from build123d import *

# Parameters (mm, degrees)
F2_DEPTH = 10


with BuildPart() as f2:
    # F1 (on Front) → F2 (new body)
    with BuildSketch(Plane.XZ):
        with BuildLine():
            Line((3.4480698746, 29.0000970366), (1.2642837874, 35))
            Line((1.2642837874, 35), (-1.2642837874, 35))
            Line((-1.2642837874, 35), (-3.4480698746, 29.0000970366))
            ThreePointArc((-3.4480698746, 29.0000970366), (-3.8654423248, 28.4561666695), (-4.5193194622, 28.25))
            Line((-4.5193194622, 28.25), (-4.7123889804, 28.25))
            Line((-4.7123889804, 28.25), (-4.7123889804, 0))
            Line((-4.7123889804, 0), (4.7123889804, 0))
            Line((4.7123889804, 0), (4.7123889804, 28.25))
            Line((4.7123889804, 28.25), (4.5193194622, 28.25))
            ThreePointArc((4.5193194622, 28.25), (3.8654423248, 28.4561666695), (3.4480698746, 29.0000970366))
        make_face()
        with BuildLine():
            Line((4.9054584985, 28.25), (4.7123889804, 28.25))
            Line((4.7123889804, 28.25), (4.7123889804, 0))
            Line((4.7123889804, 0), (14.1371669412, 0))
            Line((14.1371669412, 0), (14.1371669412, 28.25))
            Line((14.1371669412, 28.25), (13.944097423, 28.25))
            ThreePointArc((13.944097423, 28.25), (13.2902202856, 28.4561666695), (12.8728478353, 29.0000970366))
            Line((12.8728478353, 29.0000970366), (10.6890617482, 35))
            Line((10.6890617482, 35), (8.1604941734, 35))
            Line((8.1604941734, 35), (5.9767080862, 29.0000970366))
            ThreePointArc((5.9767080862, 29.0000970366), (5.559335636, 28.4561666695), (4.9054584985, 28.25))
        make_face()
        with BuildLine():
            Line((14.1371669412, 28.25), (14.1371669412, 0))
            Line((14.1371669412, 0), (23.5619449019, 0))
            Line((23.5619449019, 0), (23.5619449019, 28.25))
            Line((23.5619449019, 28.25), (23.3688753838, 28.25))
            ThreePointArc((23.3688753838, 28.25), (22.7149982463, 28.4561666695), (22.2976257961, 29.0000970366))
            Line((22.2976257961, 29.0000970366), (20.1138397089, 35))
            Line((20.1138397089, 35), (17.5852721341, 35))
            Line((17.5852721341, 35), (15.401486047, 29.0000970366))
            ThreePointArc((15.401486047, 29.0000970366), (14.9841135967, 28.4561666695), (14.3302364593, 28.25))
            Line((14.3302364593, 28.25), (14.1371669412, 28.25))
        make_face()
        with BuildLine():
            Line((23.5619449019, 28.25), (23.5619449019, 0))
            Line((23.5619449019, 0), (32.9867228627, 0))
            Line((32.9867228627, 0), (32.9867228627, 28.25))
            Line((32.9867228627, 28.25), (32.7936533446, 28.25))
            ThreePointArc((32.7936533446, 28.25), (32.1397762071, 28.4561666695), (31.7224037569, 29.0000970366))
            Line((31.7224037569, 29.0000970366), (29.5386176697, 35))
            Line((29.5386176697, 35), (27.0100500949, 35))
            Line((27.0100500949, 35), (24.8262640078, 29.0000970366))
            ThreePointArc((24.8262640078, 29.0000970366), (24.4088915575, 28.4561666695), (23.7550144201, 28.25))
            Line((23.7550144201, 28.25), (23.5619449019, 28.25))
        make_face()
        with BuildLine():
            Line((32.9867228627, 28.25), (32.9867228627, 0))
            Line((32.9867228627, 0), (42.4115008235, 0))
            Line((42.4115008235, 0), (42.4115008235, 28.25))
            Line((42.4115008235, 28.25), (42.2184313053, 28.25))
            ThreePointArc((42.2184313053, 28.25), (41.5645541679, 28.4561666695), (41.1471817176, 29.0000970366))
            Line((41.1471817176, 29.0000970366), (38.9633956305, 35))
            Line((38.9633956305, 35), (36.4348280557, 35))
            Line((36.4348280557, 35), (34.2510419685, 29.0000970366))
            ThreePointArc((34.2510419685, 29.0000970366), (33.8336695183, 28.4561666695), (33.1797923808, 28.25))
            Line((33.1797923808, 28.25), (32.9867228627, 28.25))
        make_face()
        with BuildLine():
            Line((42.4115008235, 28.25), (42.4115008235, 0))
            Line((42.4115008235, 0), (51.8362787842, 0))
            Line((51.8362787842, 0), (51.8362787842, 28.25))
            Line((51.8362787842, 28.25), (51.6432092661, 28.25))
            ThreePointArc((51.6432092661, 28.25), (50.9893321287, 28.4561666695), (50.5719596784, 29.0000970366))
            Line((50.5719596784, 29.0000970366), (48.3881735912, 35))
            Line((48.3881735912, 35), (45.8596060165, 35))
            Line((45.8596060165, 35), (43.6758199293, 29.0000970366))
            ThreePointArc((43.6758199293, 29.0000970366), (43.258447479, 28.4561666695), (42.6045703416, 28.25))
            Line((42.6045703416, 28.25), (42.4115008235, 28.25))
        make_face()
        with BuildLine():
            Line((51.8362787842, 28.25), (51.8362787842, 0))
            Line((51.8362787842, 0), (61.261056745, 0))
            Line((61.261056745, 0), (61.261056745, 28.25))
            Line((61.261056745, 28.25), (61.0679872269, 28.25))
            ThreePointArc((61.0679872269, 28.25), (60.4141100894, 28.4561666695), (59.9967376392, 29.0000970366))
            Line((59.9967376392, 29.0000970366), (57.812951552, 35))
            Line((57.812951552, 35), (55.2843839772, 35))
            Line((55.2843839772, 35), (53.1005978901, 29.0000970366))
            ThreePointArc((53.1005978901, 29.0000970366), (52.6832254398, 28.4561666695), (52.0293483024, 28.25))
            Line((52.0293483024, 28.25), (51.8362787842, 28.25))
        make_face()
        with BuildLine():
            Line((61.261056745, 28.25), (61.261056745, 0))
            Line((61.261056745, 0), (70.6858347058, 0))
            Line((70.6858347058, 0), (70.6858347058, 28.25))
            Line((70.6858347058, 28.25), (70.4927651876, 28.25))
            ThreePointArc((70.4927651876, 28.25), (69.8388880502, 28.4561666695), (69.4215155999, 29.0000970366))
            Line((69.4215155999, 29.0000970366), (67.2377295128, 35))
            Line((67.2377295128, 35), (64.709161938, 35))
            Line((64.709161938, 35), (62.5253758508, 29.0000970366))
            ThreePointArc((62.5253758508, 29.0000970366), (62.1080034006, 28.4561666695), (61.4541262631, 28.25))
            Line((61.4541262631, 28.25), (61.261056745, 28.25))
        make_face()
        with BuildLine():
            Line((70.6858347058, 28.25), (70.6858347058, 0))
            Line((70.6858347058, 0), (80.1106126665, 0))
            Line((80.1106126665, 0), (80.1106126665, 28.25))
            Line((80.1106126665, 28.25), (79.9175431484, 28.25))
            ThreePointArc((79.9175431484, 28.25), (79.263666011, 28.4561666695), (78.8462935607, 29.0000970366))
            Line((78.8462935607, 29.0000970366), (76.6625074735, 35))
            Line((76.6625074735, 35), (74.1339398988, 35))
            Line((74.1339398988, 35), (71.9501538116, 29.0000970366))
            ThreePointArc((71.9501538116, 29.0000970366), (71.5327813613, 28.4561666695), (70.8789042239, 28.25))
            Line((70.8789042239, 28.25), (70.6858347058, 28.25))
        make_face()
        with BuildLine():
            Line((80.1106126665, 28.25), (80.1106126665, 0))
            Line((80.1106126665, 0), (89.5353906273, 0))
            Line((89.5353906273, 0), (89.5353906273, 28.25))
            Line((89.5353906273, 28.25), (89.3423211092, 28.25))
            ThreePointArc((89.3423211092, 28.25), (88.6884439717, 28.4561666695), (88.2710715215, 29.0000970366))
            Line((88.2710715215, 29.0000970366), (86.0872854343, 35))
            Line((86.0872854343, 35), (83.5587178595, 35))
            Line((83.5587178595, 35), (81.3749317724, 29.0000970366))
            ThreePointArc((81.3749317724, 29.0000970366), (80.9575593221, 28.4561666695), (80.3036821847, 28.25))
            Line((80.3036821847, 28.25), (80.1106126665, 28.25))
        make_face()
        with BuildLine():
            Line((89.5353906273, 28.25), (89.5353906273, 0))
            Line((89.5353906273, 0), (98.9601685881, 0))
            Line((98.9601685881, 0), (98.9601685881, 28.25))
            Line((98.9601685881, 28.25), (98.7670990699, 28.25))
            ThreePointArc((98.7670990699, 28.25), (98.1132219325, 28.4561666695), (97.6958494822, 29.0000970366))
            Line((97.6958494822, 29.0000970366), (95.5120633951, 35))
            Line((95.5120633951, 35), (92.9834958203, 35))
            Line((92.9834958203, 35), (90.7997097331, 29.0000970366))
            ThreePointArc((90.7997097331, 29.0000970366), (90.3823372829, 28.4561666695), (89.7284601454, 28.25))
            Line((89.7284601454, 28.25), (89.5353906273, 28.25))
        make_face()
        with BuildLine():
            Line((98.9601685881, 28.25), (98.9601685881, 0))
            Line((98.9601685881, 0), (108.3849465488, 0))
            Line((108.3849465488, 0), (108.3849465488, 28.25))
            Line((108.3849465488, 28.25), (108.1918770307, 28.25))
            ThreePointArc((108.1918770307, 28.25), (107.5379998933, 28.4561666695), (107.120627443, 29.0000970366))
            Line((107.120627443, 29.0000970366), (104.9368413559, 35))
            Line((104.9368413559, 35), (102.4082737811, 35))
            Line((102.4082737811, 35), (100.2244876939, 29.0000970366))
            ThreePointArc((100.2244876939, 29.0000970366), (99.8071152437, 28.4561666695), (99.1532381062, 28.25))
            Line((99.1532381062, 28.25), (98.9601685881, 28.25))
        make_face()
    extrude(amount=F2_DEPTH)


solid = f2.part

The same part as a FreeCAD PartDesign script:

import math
import FreeCAD as App
import Part
import Sketcher

V = App.Vector
Q = App.Units.Quantity

doc = App.newDocument("Part")
body = doc.addObject("PartDesign::Body", "Body")

# Sketch on XZ plane
sketch1 = body.newObject("Sketcher::SketchObject", "Sketch")
sketch1.AttachmentSupport = (doc.getObject("XZ_Plane"), [""])
sketch1.MapMode = "FlatFace"
sketch1.addGeometry(Part.LineSegment(V(3.44807, 29.000097, 0), V(1.264284, 35, 0)), False)
sketch1.addGeometry(Part.LineSegment(V(1.264284, 35, 0), V(-1.264284, 35, 0)), False)
sketch1.addGeometry(Part.LineSegment(V(-1.264284, 35, 0), V(-3.44807, 29.000097, 0)), False)
sketch1.addGeometry(Part.ArcOfCircle(Part.Circle(V(-4.519319, 29.39, 0), V(0, 0, 1), 1.14), math.radians(-90), math.radians(-20)), False)
sketch1.addGeometry(Part.LineSegment(V(-4.519319, 28.25, 0), V(-4.712389, 28.25, 0)), False)
sketch1.addGeometry(Part.LineSegment(V(-4.712389, 28.25, 0), V(-4.712389, 0, 0)), False)
sketch1.addGeometry(Part.LineSegment(V(-4.712389, 0, 0), V(108.384947, 0, 0)), False)
sketch1.addGeometry(Part.LineSegment(V(108.384947, 0, 0), V(108.384947, 28.25, 0)), False)
sketch1.addGeometry(Part.LineSegment(V(108.384947, 28.25, 0), V(108.191877, 28.25, 0)), False)
sketch1.addGeometry(Part.ArcOfCircle(Part.Circle(V(108.191877, 29.39, 0), V(0, 0, 1), 1.14), math.radians(-160), math.radians(-90)), False)
sketch1.addGeometry(Part.LineSegment(V(107.120627, 29.000097, 0), V(104.936841, 35, 0)), False)
sketch1.addGeometry(Part.LineSegment(V(104.936841, 35, 0), V(102.408274, 35, 0)), False)
sketch1.addGeometry(Part.LineSegment(V(102.408274, 35, 0), V(100.224488, 29.000097, 0)), False)
sketch1.addGeometry(Part.ArcOfCircle(Part.Circle(V(99.153238, 29.39, 0), V(0, 0, 1), 1.14), math.radians(-90), math.radians(-20)), False)
sketch1.addGeometry(Part.LineSegment(V(99.153238, 28.25, 0), V(98.767099, 28.25, 0)), False)
sketch1.addGeometry(Part.ArcOfCircle(Part.Circle(V(98.767099, 29.39, 0), V(0, 0, 1), 1.14), math.radians(-160), math.radians(-90)), False)
sketch1.addGeometry(Part.LineSegment(V(97.695849, 29.000097, 0), V(95.512063, 35, 0)), False)
sketch1.addGeometry(Part.LineSegment(V(95.512063, 35, 0), V(92.983496, 35, 0)), False)
sketch1.addGeometry(Part.LineSegment(V(92.983496, 35, 0), V(90.79971, 29.000097, 0)), False)
sketch1.addGeometry(Part.ArcOfCircle(Part.Circle(V(89.72846, 29.39, 0), V(0, 0, 1), 1.14), math.radians(-90), math.radians(-20)), False)
sketch1.addGeometry(Part.LineSegment(V(89.72846, 28.25, 0), V(89.342321, 28.25, 0)), False)
sketch1.addGeometry(Part.ArcOfCircle(Part.Circle(V(89.342321, 29.39, 0), V(0, 0, 1), 1.14), math.radians(-160), math.radians(-90)), False)
sketch1.addGeometry(Part.LineSegment(V(88.271072, 29.000097, 0), V(86.087285, 35, 0)), False)
sketch1.addGeometry(Part.LineSegment(V(86.087285, 35, 0), V(83.558718, 35, 0)), False)
sketch1.addGeometry(Part.LineSegment(V(83.558718, 35, 0), V(81.374932, 29.000097, 0)), False)
sketch1.addGeometry(Part.ArcOfCircle(Part.Circle(V(80.303682, 29.39, 0), V(0, 0, 1), 1.14), math.radians(-90), math.radians(-20)), False)
sketch1.addGeometry(Part.LineSegment(V(80.303682, 28.25, 0), V(79.917543, 28.25, 0)), False)
sketch1.addGeometry(Part.ArcOfCircle(Part.Circle(V(79.917543, 29.39, 0), V(0, 0, 1), 1.14), math.radians(-160), math.radians(-90)), False)
sketch1.addGeometry(Part.LineSegment(V(78.846294, 29.000097, 0), V(76.662507, 35, 0)), False)
sketch1.addGeometry(Part.LineSegment(V(76.662507, 35, 0), V(74.13394, 35, 0)), False)
sketch1.addGeometry(Part.LineSegment(V(74.13394, 35, 0), V(71.950154, 29.000097, 0)), False)
sketch1.addGeometry(Part.ArcOfCircle(Part.Circle(V(70.878904, 29.39, 0), V(0, 0, 1), 1.14), math.radians(-90), math.radians(-20)), False)
sketch1.addGeometry(Part.LineSegment(V(70.878904, 28.25, 0), V(70.492765, 28.25, 0)), False)
sketch1.addGeometry(Part.ArcOfCircle(Part.Circle(V(70.492765, 29.39, 0), V(0, 0, 1), 1.14), math.radians(-160), math.radians(-90)), False)
sketch1.addGeometry(Part.LineSegment(V(69.421516, 29.000097, 0), V(67.23773, 35, 0)), False)
sketch1.addGeometry(Part.LineSegment(V(67.23773, 35, 0), V(64.709162, 35, 0)), False)
sketch1.addGeometry(Part.LineSegment(V(64.709162, 35, 0), V(62.525376, 29.000097, 0)), False)
sketch1.addGeometry(Part.ArcOfCircle(Part.Circle(V(61.454126, 29.39, 0), V(0, 0, 1), 1.14), math.radians(-90), math.radians(-20)), False)
sketch1.addGeometry(Part.LineSegment(V(61.454126, 28.25, 0), V(61.067987, 28.25, 0)), False)
sketch1.addGeometry(Part.ArcOfCircle(Part.Circle(V(61.067987, 29.39, 0), V(0, 0, 1), 1.14), math.radians(-160), math.radians(-90)), False)
sketch1.addGeometry(Part.LineSegment(V(59.996738, 29.000097, 0), V(57.812952, 35, 0)), False)
sketch1.addGeometry(Part.LineSegment(V(57.812952, 35, 0), V(55.284384, 35, 0)), False)
sketch1.addGeometry(Part.LineSegment(V(55.284384, 35, 0), V(53.100598, 29.000097, 0)), False)
sketch1.addGeometry(Part.ArcOfCircle(Part.Circle(V(52.029348, 29.39, 0), V(0, 0, 1), 1.14), math.radians(-90), math.radians(-20)), False)
sketch1.addGeometry(Part.LineSegment(V(52.029348, 28.25, 0), V(51.643209, 28.25, 0)), False)
sketch1.addGeometry(Part.ArcOfCircle(Part.Circle(V(51.643209, 29.39, 0), V(0, 0, 1), 1.14), math.radians(-160), math.radians(-90)), False)
sketch1.addGeometry(Part.LineSegment(V(50.57196, 29.000097, 0), V(48.388174, 35, 0)), False)
sketch1.addGeometry(Part.LineSegment(V(48.388174, 35, 0), V(45.859606, 35, 0)), False)
sketch1.addGeometry(Part.LineSegment(V(45.859606, 35, 0), V(43.67582, 29.000097, 0)), False)
sketch1.addGeometry(Part.ArcOfCircle(Part.Circle(V(42.60457, 29.39, 0), V(0, 0, 1), 1.14), math.radians(-90), math.radians(-20)), False)
sketch1.addGeometry(Part.LineSegment(V(42.60457, 28.25, 0), V(42.218431, 28.25, 0)), False)
sketch1.addGeometry(Part.ArcOfCircle(Part.Circle(V(42.218431, 29.39, 0), V(0, 0, 1), 1.14), math.radians(-160), math.radians(-90)), False)
sketch1.addGeometry(Part.LineSegment(V(41.147182, 29.000097, 0), V(38.963396, 35, 0)), False)
sketch1.addGeometry(Part.LineSegment(V(38.963396, 35, 0), V(36.434828, 35, 0)), False)
sketch1.addGeometry(Part.LineSegment(V(36.434828, 35, 0), V(34.251042, 29.000097, 0)), False)
sketch1.addGeometry(Part.ArcOfCircle(Part.Circle(V(33.179792, 29.39, 0), V(0, 0, 1), 1.14), math.radians(-90), math.radians(-20)), False)
sketch1.addGeometry(Part.LineSegment(V(33.179792, 28.25, 0), V(32.793653, 28.25, 0)), False)
sketch1.addGeometry(Part.ArcOfCircle(Part.Circle(V(32.793653, 29.39, 0), V(0, 0, 1), 1.14), math.radians(-160), math.radians(-90)), False)
sketch1.addGeometry(Part.LineSegment(V(31.722404, 29.000097, 0), V(29.538618, 35, 0)), False)
sketch1.addGeometry(Part.LineSegment(V(29.538618, 35, 0), V(27.01005, 35, 0)), False)
sketch1.addGeometry(Part.LineSegment(V(27.01005, 35, 0), V(24.826264, 29.000097, 0)), False)
sketch1.addGeometry(Part.ArcOfCircle(Part.Circle(V(23.755014, 29.39, 0), V(0, 0, 1), 1.14), math.radians(-90), math.radians(-20)), False)
sketch1.addGeometry(Part.LineSegment(V(23.755014, 28.25, 0), V(23.368875, 28.25, 0)), False)
sketch1.addGeometry(Part.ArcOfCircle(Part.Circle(V(23.368875, 29.39, 0), V(0, 0, 1), 1.14), math.radians(-160), math.radians(-90)), False)
sketch1.addGeometry(Part.LineSegment(V(22.297626, 29.000097, 0), V(20.11384, 35, 0)), False)
sketch1.addGeometry(Part.LineSegment(V(20.11384, 35, 0), V(17.585272, 35, 0)), False)
sketch1.addGeometry(Part.LineSegment(V(17.585272, 35, 0), V(15.401486, 29.000097, 0)), False)
sketch1.addGeometry(Part.ArcOfCircle(Part.Circle(V(14.330236, 29.39, 0), V(0, 0, 1), 1.14), math.radians(-90), math.radians(-20)), False)
sketch1.addGeometry(Part.LineSegment(V(14.330236, 28.25, 0), V(13.944097, 28.25, 0)), False)
sketch1.addGeometry(Part.ArcOfCircle(Part.Circle(V(13.944097, 29.39, 0), V(0, 0, 1), 1.14), math.radians(-160), math.radians(-90)), False)
sketch1.addGeometry(Part.LineSegment(V(12.872848, 29.000097, 0), V(10.689062, 35, 0)), False)
sketch1.addGeometry(Part.LineSegment(V(10.689062, 35, 0), V(8.160494, 35, 0)), False)
sketch1.addGeometry(Part.LineSegment(V(8.160494, 35, 0), V(5.976708, 29.000097, 0)), False)
sketch1.addGeometry(Part.ArcOfCircle(Part.Circle(V(4.905458, 29.39, 0), V(0, 0, 1), 1.14), math.radians(-90), math.radians(-20)), False)
sketch1.addGeometry(Part.LineSegment(V(4.905458, 28.25, 0), V(4.519319, 28.25, 0)), False)
sketch1.addGeometry(Part.ArcOfCircle(Part.Circle(V(4.519319, 29.39, 0), V(0, 0, 1), 1.14), math.radians(-160), math.radians(-90)), False)
sketch1.addConstraint(Sketcher.Constraint("Coincident", 0, 2, 1, 1))
sketch1.addConstraint(Sketcher.Constraint("Coincident", 1, 2, 2, 1))
sketch1.addConstraint(Sketcher.Constraint("Tangent", 2, 2, 3, 2))
sketch1.addConstraint(Sketcher.Constraint("Tangent", 3, 1, 4, 1))
sketch1.addConstraint(Sketcher.Constraint("Coincident", 4, 2, 5, 1))
sketch1.addConstraint(Sketcher.Constraint("Coincident", 5, 2, 6, 1))
sketch1.addConstraint(Sketcher.Constraint("Coincident", 6, 2, 7, 1))
sketch1.addConstraint(Sketcher.Constraint("Coincident", 7, 2, 8, 1))
sketch1.addConstraint(Sketcher.Constraint("Tangent", 8, 2, 9, 2))
sketch1.addConstraint(Sketcher.Constraint("Tangent", 9, 1, 10, 1))
sketch1.addConstraint(Sketcher.Constraint("Coincident", 10, 2, 11, 1))
sketch1.addConstraint(Sketcher.Constraint("Coincident", 11, 2, 12, 1))
sketch1.addConstraint(Sketcher.Constraint("Tangent", 12, 2, 13, 2))
sketch1.addConstraint(Sketcher.Constraint("Tangent", 13, 1, 14, 1))
sketch1.addConstraint(Sketcher.Constraint("Tangent", 14, 2, 15, 2))
sketch1.addConstraint(Sketcher.Constraint("Tangent", 15, 1, 16, 1))
sketch1.addConstraint(Sketcher.Constraint("Coincident", 16, 2, 17, 1))
sketch1.addConstraint(Sketcher.Constraint("Coincident", 17, 2, 18, 1))
sketch1.addConstraint(Sketcher.Constraint("Tangent", 18, 2, 19, 2))
sketch1.addConstraint(Sketcher.Constraint("Tangent", 19, 1, 20, 1))
sketch1.addConstraint(Sketcher.Constraint("Tangent", 20, 2, 21, 2))
sketch1.addConstraint(Sketcher.Constraint("Tangent", 21, 1, 22, 1))
sketch1.addConstraint(Sketcher.Constraint("Coincident", 22, 2, 23, 1))
sketch1.addConstraint(Sketcher.Constraint("Coincident", 23, 2, 24, 1))
sketch1.addConstraint(Sketcher.Constraint("Tangent", 24, 2, 25, 2))
sketch1.addConstraint(Sketcher.Constraint("Tangent", 25, 1, 26, 1))
sketch1.addConstraint(Sketcher.Constraint("Tangent", 26, 2, 27, 2))
sketch1.addConstraint(Sketcher.Constraint("Tangent", 27, 1, 28, 1))
sketch1.addConstraint(Sketcher.Constraint("Coincident", 28, 2, 29, 1))
sketch1.addConstraint(Sketcher.Constraint("Coincident", 29, 2, 30, 1))
sketch1.addConstraint(Sketcher.Constraint("Tangent", 30, 2, 31, 2))
sketch1.addConstraint(Sketcher.Constraint("Tangent", 31, 1, 32, 1))
sketch1.addConstraint(Sketcher.Constraint("Tangent", 32, 2, 33, 2))
sketch1.addConstraint(Sketcher.Constraint("Tangent", 33, 1, 34, 1))
sketch1.addConstraint(Sketcher.Constraint("Coincident", 34, 2, 35, 1))
sketch1.addConstraint(Sketcher.Constraint("Coincident", 35, 2, 36, 1))
sketch1.addConstraint(Sketcher.Constraint("Tangent", 36, 2, 37, 2))
sketch1.addConstraint(Sketcher.Constraint("Tangent", 37, 1, 38, 1))
sketch1.addConstraint(Sketcher.Constraint("Tangent", 38, 2, 39, 2))
sketch1.addConstraint(Sketcher.Constraint("Tangent", 39, 1, 40, 1))
sketch1.addConstraint(Sketcher.Constraint("Coincident", 40, 2, 41, 1))
sketch1.addConstraint(Sketcher.Constraint("Coincident", 41, 2, 42, 1))
sketch1.addConstraint(Sketcher.Constraint("Tangent", 42, 2, 43, 2))
sketch1.addConstraint(Sketcher.Constraint("Tangent", 43, 1, 44, 1))
sketch1.addConstraint(Sketcher.Constraint("Tangent", 44, 2, 45, 2))
sketch1.addConstraint(Sketcher.Constraint("Tangent", 45, 1, 46, 1))
sketch1.addConstraint(Sketcher.Constraint("Coincident", 46, 2, 47, 1))
sketch1.addConstraint(Sketcher.Constraint("Coincident", 47, 2, 48, 1))
sketch1.addConstraint(Sketcher.Constraint("Tangent", 48, 2, 49, 2))
sketch1.addConstraint(Sketcher.Constraint("Tangent", 49, 1, 50, 1))
sketch1.addConstraint(Sketcher.Constraint("Tangent", 50, 2, 51, 2))
sketch1.addConstraint(Sketcher.Constraint("Tangent", 51, 1, 52, 1))
sketch1.addConstraint(Sketcher.Constraint("Coincident", 52, 2, 53, 1))
sketch1.addConstraint(Sketcher.Constraint("Coincident", 53, 2, 54, 1))
sketch1.addConstraint(Sketcher.Constraint("Tangent", 54, 2, 55, 2))
sketch1.addConstraint(Sketcher.Constraint("Tangent", 55, 1, 56, 1))
sketch1.addConstraint(Sketcher.Constraint("Tangent", 56, 2, 57, 2))
sketch1.addConstraint(Sketcher.Constraint("Tangent", 57, 1, 58, 1))
sketch1.addConstraint(Sketcher.Constraint("Coincident", 58, 2, 59, 1))
sketch1.addConstraint(Sketcher.Constraint("Coincident", 59, 2, 60, 1))
sketch1.addConstraint(Sketcher.Constraint("Tangent", 60, 2, 61, 2))
sketch1.addConstraint(Sketcher.Constraint("Tangent", 61, 1, 62, 1))
sketch1.addConstraint(Sketcher.Constraint("Tangent", 62, 2, 63, 2))
sketch1.addConstraint(Sketcher.Constraint("Tangent", 63, 1, 64, 1))
sketch1.addConstraint(Sketcher.Constraint("Coincident", 64, 2, 65, 1))
sketch1.addConstraint(Sketcher.Constraint("Coincident", 65, 2, 66, 1))
sketch1.addConstraint(Sketcher.Constraint("Tangent", 66, 2, 67, 2))
sketch1.addConstraint(Sketcher.Constraint("Tangent", 67, 1, 68, 1))
sketch1.addConstraint(Sketcher.Constraint("Tangent", 68, 2, 69, 2))
sketch1.addConstraint(Sketcher.Constraint("Tangent", 69, 1, 70, 1))
sketch1.addConstraint(Sketcher.Constraint("Coincident", 70, 2, 71, 1))
sketch1.addConstraint(Sketcher.Constraint("Coincident", 71, 2, 72, 1))
sketch1.addConstraint(Sketcher.Constraint("Tangent", 72, 2, 73, 2))
sketch1.addConstraint(Sketcher.Constraint("Tangent", 73, 1, 74, 1))
sketch1.addConstraint(Sketcher.Constraint("Tangent", 74, 2, 75, 2))
sketch1.addConstraint(Sketcher.Constraint("Tangent", 75, 1, 0, 1))
sketch1.addConstraint(Sketcher.Constraint("Horizontal", 1))
sketch1.addConstraint(Sketcher.Constraint("Horizontal", 4))
sketch1.addConstraint(Sketcher.Constraint("Vertical", 5))
sketch1.addConstraint(Sketcher.Constraint("Horizontal", 6))
sketch1.addConstraint(Sketcher.Constraint("Vertical", 7))
sketch1.addConstraint(Sketcher.Constraint("Horizontal", 8))
sketch1.addConstraint(Sketcher.Constraint("Horizontal", 11))
sketch1.addConstraint(Sketcher.Constraint("Horizontal", 14))
sketch1.addConstraint(Sketcher.Constraint("Horizontal", 17))
sketch1.addConstraint(Sketcher.Constraint("Horizontal", 20))
sketch1.addConstraint(Sketcher.Constraint("Horizontal", 23))
sketch1.addConstraint(Sketcher.Constraint("Horizontal", 26))
sketch1.addConstraint(Sketcher.Constraint("Horizontal", 29))
sketch1.addConstraint(Sketcher.Constraint("Horizontal", 32))
sketch1.addConstraint(Sketcher.Constraint("Horizontal", 35))
sketch1.addConstraint(Sketcher.Constraint("Horizontal", 38))
sketch1.addConstraint(Sketcher.Constraint("Horizontal", 41))
sketch1.addConstraint(Sketcher.Constraint("Horizontal", 44))
sketch1.addConstraint(Sketcher.Constraint("Horizontal", 47))
sketch1.addConstraint(Sketcher.Constraint("Horizontal", 50))
sketch1.addConstraint(Sketcher.Constraint("Horizontal", 53))
sketch1.addConstraint(Sketcher.Constraint("Horizontal", 56))
sketch1.addConstraint(Sketcher.Constraint("Horizontal", 59))
sketch1.addConstraint(Sketcher.Constraint("Horizontal", 62))
sketch1.addConstraint(Sketcher.Constraint("Horizontal", 65))
sketch1.addConstraint(Sketcher.Constraint("Horizontal", 68))
sketch1.addConstraint(Sketcher.Constraint("Horizontal", 71))
sketch1.addConstraint(Sketcher.Constraint("Horizontal", 74))
sketch1.addConstraint(Sketcher.Constraint("Equal", 3, 9))
sketch1.addConstraint(Sketcher.Constraint("Equal", 9, 13))
sketch1.addConstraint(Sketcher.Constraint("Equal", 13, 15))
sketch1.addConstraint(Sketcher.Constraint("Equal", 15, 19))
sketch1.addConstraint(Sketcher.Constraint("Equal", 19, 21))
sketch1.addConstraint(Sketcher.Constraint("Equal", 21, 25))
sketch1.addConstraint(Sketcher.Constraint("Equal", 25, 27))
sketch1.addConstraint(Sketcher.Constraint("Equal", 27, 31))
sketch1.addConstraint(Sketcher.Constraint("Equal", 31, 33))
sketch1.addConstraint(Sketcher.Constraint("Equal", 33, 37))
sketch1.addConstraint(Sketcher.Constraint("Equal", 37, 39))
sketch1.addConstraint(Sketcher.Constraint("Equal", 39, 43))
sketch1.addConstraint(Sketcher.Constraint("Equal", 43, 45))
sketch1.addConstraint(Sketcher.Constraint("Equal", 45, 49))
sketch1.addConstraint(Sketcher.Constraint("Equal", 49, 51))
sketch1.addConstraint(Sketcher.Constraint("Equal", 51, 55))
sketch1.addConstraint(Sketcher.Constraint("Equal", 55, 57))
sketch1.addConstraint(Sketcher.Constraint("Equal", 57, 61))
sketch1.addConstraint(Sketcher.Constraint("Equal", 61, 63))
sketch1.addConstraint(Sketcher.Constraint("Equal", 63, 67))
sketch1.addConstraint(Sketcher.Constraint("Equal", 67, 69))
sketch1.addConstraint(Sketcher.Constraint("Equal", 69, 73))
sketch1.addConstraint(Sketcher.Constraint("Equal", 73, 75))
sketch1.addConstraint(Sketcher.Constraint("Symmetric", 3, 3, 75, 3, -2))
sketch1.addConstraint(Sketcher.Constraint("PointOnObject", 5, 2, -1))
sketch1.addConstraint(Sketcher.Constraint("Parallel", 0, 10))
sketch1.addConstraint(Sketcher.Constraint("Parallel", 2, 12))
sketch1.addConstraint(Sketcher.Constraint("Parallel", 10, 16))
sketch1.addConstraint(Sketcher.Constraint("Parallel", 12, 18))
sketch1.addConstraint(Sketcher.Constraint("Parallel", 16, 22))
sketch1.addConstraint(Sketcher.Constraint("Parallel", 18, 24))
sketch1.addConstraint(Sketcher.Constraint("Parallel", 22, 28))
sketch1.addConstraint(Sketcher.Constraint("Parallel", 24, 30))
sketch1.addConstraint(Sketcher.Constraint("Parallel", 28, 34))
sketch1.addConstraint(Sketcher.Constraint("Parallel", 30, 36))
sketch1.addConstraint(Sketcher.Constraint("Parallel", 34, 40))
sketch1.addConstraint(Sketcher.Constraint("Parallel", 36, 42))
sketch1.addConstraint(Sketcher.Constraint("Parallel", 40, 46))
sketch1.addConstraint(Sketcher.Constraint("Parallel", 42, 48))
sketch1.addConstraint(Sketcher.Constraint("Parallel", 46, 52))
sketch1.addConstraint(Sketcher.Constraint("Parallel", 48, 54))
sketch1.addConstraint(Sketcher.Constraint("Parallel", 52, 58))
sketch1.addConstraint(Sketcher.Constraint("Parallel", 54, 60))
sketch1.addConstraint(Sketcher.Constraint("Parallel", 58, 64))
sketch1.addConstraint(Sketcher.Constraint("Parallel", 60, 66))
sketch1.addConstraint(Sketcher.Constraint("Parallel", 64, 70))
sketch1.addConstraint(Sketcher.Constraint("Parallel", 66, 72))
sketch1.addConstraint(Sketcher.Constraint("Horizontal", 3, 3, 9, 3))
sketch1.addConstraint(Sketcher.Constraint("Horizontal", 9, 3, 13, 3))
sketch1.addConstraint(Sketcher.Constraint("Horizontal", 15, 3, 19, 3))
sketch1.addConstraint(Sketcher.Constraint("Horizontal", 21, 3, 25, 3))
sketch1.addConstraint(Sketcher.Constraint("Horizontal", 27, 3, 31, 3))
sketch1.addConstraint(Sketcher.Constraint("Horizontal", 33, 3, 37, 3))
sketch1.addConstraint(Sketcher.Constraint("Horizontal", 39, 3, 43, 3))
sketch1.addConstraint(Sketcher.Constraint("Horizontal", 45, 3, 49, 3))
sketch1.addConstraint(Sketcher.Constraint("Horizontal", 51, 3, 55, 3))
sketch1.addConstraint(Sketcher.Constraint("Horizontal", 57, 3, 61, 3))
sketch1.addConstraint(Sketcher.Constraint("Horizontal", 63, 3, 67, 3))
sketch1.addConstraint(Sketcher.Constraint("Horizontal", 2, 2, 9, 1))
sketch1.addConstraint(Sketcher.Constraint("Horizontal", 1, 2, 10, 2))
sketch1.addConstraint(Sketcher.Constraint("Horizontal", 11, 2, 16, 2))
sketch1.addConstraint(Sketcher.Constraint("Horizontal", 17, 2, 22, 2))
sketch1.addConstraint(Sketcher.Constraint("Horizontal", 23, 2, 28, 2))
sketch1.addConstraint(Sketcher.Constraint("Horizontal", 29, 2, 34, 2))
sketch1.addConstraint(Sketcher.Constraint("Horizontal", 35, 2, 40, 2))
sketch1.addConstraint(Sketcher.Constraint("Horizontal", 41, 2, 46, 2))
sketch1.addConstraint(Sketcher.Constraint("Horizontal", 47, 2, 52, 2))
sketch1.addConstraint(Sketcher.Constraint("Horizontal", 53, 2, 58, 2))
sketch1.addConstraint(Sketcher.Constraint("Horizontal", 59, 2, 64, 2))
sketch1.addConstraint(Sketcher.Constraint("Horizontal", 65, 2, 70, 2))
sketch1.addConstraint(Sketcher.Constraint("Equal", 4, 8))
sketch1.addConstraint(Sketcher.Constraint("Equal", 1, 11))
sketch1.addConstraint(Sketcher.Constraint("Equal", 11, 17))
sketch1.addConstraint(Sketcher.Constraint("Equal", 14, 20))
sketch1.addConstraint(Sketcher.Constraint("Equal", 17, 23))
sketch1.addConstraint(Sketcher.Constraint("Equal", 20, 26))
sketch1.addConstraint(Sketcher.Constraint("Equal", 23, 29))
sketch1.addConstraint(Sketcher.Constraint("Equal", 26, 32))
sketch1.addConstraint(Sketcher.Constraint("Equal", 29, 35))
sketch1.addConstraint(Sketcher.Constraint("Equal", 32, 38))
sketch1.addConstraint(Sketcher.Constraint("Equal", 35, 41))
sketch1.addConstraint(Sketcher.Constraint("Equal", 38, 44))
sketch1.addConstraint(Sketcher.Constraint("Equal", 41, 47))
sketch1.addConstraint(Sketcher.Constraint("Equal", 44, 50))
sketch1.addConstraint(Sketcher.Constraint("Equal", 47, 53))
sketch1.addConstraint(Sketcher.Constraint("Equal", 50, 56))
sketch1.addConstraint(Sketcher.Constraint("Equal", 53, 59))
sketch1.addConstraint(Sketcher.Constraint("Equal", 56, 62))
sketch1.addConstraint(Sketcher.Constraint("Equal", 59, 65))
sketch1.addConstraint(Sketcher.Constraint("Equal", 62, 68))
sketch1.addConstraint(Sketcher.Constraint("Equal", 65, 71))
sketch1.addConstraint(Sketcher.Constraint("Equal", 68, 74))
sketch1.addConstraint(Sketcher.Constraint("Angle", 0, Q("110 deg")))
sketch1.addConstraint(Sketcher.Constraint("Radius", 3, Q("1.14 mm")))
sketch1.addConstraint(Sketcher.Constraint("DistanceY", -1, 1, 0, 2, Q("35 mm")))
sketch1.addConstraint(Sketcher.Constraint("DistanceY", 5, 2, 5, 1, Q("28.25 mm")))
sketch1.addConstraint(Sketcher.Constraint("DistanceX", 4, 2, 4, 1, Q("0.19307 mm")))
sketch1.addConstraint(Sketcher.Constraint("DistanceX", 14, 2, 14, 1, Q("0.386139 mm")))
sketch1.addConstraint(Sketcher.Constraint("DistanceX", -1, 1, 15, 3, Q("98.767099 mm")))
pad1 = body.newObject("PartDesign::Pad", "Pad")
pad1.Profile = sketch1
pad1.Length = 10

doc.recompute()
